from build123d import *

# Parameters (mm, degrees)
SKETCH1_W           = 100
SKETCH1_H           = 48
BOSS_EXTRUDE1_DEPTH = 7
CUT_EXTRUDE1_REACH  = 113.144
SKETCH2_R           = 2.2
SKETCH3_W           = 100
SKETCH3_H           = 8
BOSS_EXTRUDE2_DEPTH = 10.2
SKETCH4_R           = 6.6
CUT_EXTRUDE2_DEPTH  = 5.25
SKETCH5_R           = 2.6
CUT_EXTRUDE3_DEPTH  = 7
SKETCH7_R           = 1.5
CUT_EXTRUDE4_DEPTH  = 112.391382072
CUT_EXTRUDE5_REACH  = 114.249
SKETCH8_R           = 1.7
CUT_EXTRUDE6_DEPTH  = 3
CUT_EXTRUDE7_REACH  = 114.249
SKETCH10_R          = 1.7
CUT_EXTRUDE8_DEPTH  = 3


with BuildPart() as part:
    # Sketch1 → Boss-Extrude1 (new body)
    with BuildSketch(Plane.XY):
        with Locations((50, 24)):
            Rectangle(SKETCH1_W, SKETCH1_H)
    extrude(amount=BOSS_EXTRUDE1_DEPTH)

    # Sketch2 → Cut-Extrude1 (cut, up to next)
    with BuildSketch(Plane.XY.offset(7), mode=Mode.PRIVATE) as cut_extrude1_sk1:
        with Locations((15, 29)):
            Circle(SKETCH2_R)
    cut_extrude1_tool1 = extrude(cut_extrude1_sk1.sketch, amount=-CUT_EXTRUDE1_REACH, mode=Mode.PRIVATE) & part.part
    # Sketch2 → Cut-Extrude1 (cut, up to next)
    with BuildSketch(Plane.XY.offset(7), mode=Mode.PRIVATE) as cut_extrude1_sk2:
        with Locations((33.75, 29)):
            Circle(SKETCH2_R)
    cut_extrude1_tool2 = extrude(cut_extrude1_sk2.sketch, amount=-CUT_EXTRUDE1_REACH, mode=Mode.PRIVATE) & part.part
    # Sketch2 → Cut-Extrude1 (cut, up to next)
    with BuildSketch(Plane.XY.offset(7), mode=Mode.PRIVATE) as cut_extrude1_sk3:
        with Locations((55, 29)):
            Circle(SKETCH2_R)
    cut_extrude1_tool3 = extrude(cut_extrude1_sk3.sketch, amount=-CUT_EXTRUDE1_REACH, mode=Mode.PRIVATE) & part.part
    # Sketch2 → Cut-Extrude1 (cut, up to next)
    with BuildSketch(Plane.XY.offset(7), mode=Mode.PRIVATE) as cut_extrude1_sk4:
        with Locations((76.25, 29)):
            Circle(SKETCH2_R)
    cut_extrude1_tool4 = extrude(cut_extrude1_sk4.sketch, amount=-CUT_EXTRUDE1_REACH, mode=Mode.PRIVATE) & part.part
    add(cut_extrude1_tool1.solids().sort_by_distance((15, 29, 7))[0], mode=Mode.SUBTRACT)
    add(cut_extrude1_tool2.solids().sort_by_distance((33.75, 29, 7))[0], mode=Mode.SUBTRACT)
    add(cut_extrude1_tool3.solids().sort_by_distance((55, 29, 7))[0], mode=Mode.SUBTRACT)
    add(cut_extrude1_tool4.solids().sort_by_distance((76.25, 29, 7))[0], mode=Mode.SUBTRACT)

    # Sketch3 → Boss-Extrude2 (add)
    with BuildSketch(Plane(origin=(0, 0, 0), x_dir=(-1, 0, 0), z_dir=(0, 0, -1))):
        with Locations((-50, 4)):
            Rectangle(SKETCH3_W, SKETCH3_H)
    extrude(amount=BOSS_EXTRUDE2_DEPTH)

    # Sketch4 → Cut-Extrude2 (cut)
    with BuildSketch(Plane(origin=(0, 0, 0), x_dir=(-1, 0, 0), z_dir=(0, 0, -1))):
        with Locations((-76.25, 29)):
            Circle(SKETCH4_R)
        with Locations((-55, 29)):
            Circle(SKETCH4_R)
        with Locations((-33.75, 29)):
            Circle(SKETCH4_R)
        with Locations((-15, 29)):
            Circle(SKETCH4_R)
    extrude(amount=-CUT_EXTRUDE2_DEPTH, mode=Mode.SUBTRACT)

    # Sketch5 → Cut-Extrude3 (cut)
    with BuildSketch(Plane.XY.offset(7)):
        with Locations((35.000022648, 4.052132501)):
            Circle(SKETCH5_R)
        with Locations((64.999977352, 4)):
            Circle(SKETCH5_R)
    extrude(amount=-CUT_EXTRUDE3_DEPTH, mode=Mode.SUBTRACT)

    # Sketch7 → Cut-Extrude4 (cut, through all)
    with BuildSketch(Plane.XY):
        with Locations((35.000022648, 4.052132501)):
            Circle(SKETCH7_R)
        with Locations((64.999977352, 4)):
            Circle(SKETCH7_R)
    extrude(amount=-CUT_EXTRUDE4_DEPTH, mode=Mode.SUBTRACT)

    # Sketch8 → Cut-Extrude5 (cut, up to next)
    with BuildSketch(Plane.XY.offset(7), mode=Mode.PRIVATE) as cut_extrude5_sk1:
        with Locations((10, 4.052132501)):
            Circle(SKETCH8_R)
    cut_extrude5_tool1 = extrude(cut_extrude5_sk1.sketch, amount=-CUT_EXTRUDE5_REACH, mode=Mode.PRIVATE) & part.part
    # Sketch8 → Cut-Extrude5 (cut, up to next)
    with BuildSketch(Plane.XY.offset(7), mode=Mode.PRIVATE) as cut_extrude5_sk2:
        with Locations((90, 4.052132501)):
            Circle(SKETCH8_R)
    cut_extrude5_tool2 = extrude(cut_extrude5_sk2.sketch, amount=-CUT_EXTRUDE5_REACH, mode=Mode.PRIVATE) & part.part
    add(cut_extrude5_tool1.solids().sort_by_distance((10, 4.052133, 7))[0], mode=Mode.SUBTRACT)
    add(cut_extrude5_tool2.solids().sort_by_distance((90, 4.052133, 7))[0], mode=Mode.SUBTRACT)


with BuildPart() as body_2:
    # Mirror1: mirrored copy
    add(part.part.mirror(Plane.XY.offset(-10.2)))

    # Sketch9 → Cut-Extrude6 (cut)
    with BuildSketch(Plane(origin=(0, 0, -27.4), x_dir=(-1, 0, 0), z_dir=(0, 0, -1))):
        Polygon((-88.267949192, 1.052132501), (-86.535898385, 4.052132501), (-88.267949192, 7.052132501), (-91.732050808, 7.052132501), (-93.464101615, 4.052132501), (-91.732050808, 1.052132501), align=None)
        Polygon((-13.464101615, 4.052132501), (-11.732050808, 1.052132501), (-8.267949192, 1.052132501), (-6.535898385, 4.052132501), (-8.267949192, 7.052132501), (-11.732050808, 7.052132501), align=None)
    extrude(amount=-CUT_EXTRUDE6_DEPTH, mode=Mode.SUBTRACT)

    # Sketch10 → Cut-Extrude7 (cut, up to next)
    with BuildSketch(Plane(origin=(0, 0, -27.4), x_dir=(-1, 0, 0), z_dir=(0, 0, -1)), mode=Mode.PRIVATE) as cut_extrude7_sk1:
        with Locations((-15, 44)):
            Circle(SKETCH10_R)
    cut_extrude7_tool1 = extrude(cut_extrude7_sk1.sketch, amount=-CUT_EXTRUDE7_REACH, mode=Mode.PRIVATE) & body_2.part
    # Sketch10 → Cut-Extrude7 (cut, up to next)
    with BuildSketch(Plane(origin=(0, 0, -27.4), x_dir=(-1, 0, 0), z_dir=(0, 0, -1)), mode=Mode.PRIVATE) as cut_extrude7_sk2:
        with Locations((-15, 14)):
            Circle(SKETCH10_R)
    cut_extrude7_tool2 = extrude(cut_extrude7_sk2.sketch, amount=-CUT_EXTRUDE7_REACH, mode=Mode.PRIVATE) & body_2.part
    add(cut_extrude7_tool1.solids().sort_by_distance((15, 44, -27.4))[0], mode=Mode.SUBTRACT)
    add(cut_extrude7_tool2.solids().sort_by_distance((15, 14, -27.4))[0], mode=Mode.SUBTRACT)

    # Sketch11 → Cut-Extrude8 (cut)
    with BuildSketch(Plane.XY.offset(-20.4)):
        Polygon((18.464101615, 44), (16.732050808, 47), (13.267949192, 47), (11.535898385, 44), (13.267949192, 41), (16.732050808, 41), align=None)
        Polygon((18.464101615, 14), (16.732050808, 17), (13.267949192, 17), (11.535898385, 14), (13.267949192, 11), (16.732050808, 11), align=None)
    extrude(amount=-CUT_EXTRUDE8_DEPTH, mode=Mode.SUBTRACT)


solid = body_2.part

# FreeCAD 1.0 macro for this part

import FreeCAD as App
import Part
import Sketcher

V = App.Vector
Q = App.Units.Quantity


def add_polygon(sketch, points):
    """Adds a closed chain of lines whose ends are joined by coincident constraints."""
    first, n = sketch.GeometryCount, len(points)
    for a, b in zip(points, points[1:] + points[:1]):
        sketch.addGeometry(Part.LineSegment(App.Vector(*a, 0), App.Vector(*b, 0)), False)
    for i in range(n):
        sketch.addConstraint(Sketcher.Constraint("Coincident", first + i, 2, first + (i + 1) % n, 1))

doc = App.newDocument("Part")
params = doc.addObject("Spreadsheet::Sheet", "Params")
for row, (alias, value) in enumerate([
    ("sketch1_width", "100 mm"),
    ("sketch1_height", "48 mm"),
    ("pad1_length", "7 mm"),
    ("sketch2_diameter", "4.4 mm"),
    ("sketch3_diameter", "4.4 mm"),
    ("sketch4_diameter", "4.4 mm"),
    ("sketch5_diameter", "4.4 mm"),
    ("sketch6_width", "100 mm"),
    ("sketch6_height", "8 mm"),
    ("pad2_length", "10.2 mm"),
    ("sketch7_diameter", "13.2 mm"),
    ("pocket5_length", "5.25 mm"),
    ("sketch8_diameter", "5.2 mm"),
    ("pocket6_length", "7 mm"),
    ("sketch9_diameter", "3 mm"),
    ("sketch10_diameter", "3.4 mm"),
    ("sketch11_diameter", "3.4 mm"),
    ("pocket10_length", "3 mm"),
    ("sketch13_diameter", "3.4 mm"),
    ("sketch14_diameter", "3.4 mm"),
    ("pocket13_length", "3 mm"),
], start=1):
    params.set(f"A{row}", alias)
    params.set(f"B{row}", "=" + value)
    params.setAlias(f"B{row}", alias)

body = doc.addObject("PartDesign::Body", "Body")

# Sketch on XY plane
sketch1 = doc.addObject("Sketcher::SketchObject", "Sketch")
body.addObject(sketch1)
sketch1.AttachmentSupport = (doc.XY_Plane, [""])
sketch1.MapMode = "FlatFace"
add_polygon(sketch1, [(0, 48), (0, 0), (100, 0), (100, 48)])  # lines 0-3
sketch1.addConstraint([
    Sketcher.Constraint("Vertical", 0),
    Sketcher.Constraint("Horizontal", 1),
    Sketcher.Constraint("Vertical", 2),
    Sketcher.Constraint("Horizontal", 3),
    Sketcher.Constraint("Coincident", 0, 2, -1, 1),
    Sketcher.Constraint("DistanceX", 1, 1, 1, 2, Q("100 mm")),
    Sketcher.Constraint("DistanceY", 0, 2, 0, 1, Q("48 mm")),
])
sketch1.setExpression("Constraints[9]", "Params.sketch1_width")
sketch1.setExpression("Constraints[10]", "Params.sketch1_height")
pad1 = doc.addObject("PartDesign::Pad", "Pad")
body.addObject(pad1)
pad1.Profile = sketch1
pad1.setExpression("Length", "Params.pad1_length")

# Sketch on XY plane
sketch2 = doc.addObject("Sketcher::SketchObject", "Sketch001")
body.addObject(sketch2)
sketch2.AttachmentSupport = (doc.XY_Plane, [""])
sketch2.MapMode = "FlatFace"
sketch2.AttachmentOffset = App.Placement(V(0, 0, 7), App.Rotation())
sketch2.addGeometry(Part.Circle(V(15, 29, 0), V(0, 0, 1), 2.2), False)
sketch2.addConstraint([
    Sketcher.Constraint("Diameter", 0, Q("4.4 mm")),
    Sketcher.Constraint("DistanceX", -1, 1, 0, 3, Q("15 mm")),
    Sketcher.Constraint("DistanceY", -1, 1, 0, 3, Q("29 mm")),
])
sketch2.setExpression("Constraints[0]", "Params.sketch2_diameter")
pocket1 = doc.addObject("PartDesign::Pocket", "Pocket")
body.addObject(pocket1)
pocket1.Profile = sketch2
pocket1.Type = "UpToFirst"

# Sketch on XY plane
sketch3 = doc.addObject("Sketcher::SketchObject", "Sketch002")
body.addObject(sketch3)
sketch3.AttachmentSupport = (doc.XY_Plane, [""])
sketch3.MapMode = "FlatFace"
sketch3.AttachmentOffset = App.Placement(V(0, 0, 7), App.Rotation())
sketch3.addGeometry(Part.Circle(V(33.8, 29, 0), V(0, 0, 1), 2.2), False)
sketch3.addConstraint([
    Sketcher.Constraint("Diameter", 0, Q("4.4 mm")),
    Sketcher.Constraint("DistanceY", -1, 1, 0, 3, Q("29 mm")),
    Sketcher.Constraint("DistanceX", -1, 1, 0, 3, Q("33.75 mm")),
])
sketch3.setExpression("Constraints[0]", "Params.sketch3_diameter")
pocket2 = doc.addObject("PartDesign::Pocket", "Pocket001")
body.addObject(pocket2)
pocket2.Profile = sketch3
pocket2.Type = "UpToFirst"

# Sketch on XY plane
sketch4 = doc.addObject("Sketcher::SketchObject", "Sketch003")
body.addObject(sketch4)
sketch4.AttachmentSupport = (doc.XY_Plane, [""])
sketch4.MapMode = "FlatFace"
sketch4.AttachmentOffset = App.Placement(V(0, 0, 7), App.Rotation())
sketch4.addGeometry(Part.Circle(V(55, 29, 0), V(0, 0, 1), 2.2), False)
sketch4.addConstraint([
    Sketcher.Constraint("Diameter", 0, Q("4.4 mm")),
    Sketcher.Constraint("DistanceX", -1, 1, 0, 3, Q("55 mm")),
    Sketcher.Constraint("DistanceY", -1, 1, 0, 3, Q("29 mm")),
])
sketch4.setExpression("Constraints[0]", "Params.sketch4_diameter")
pocket3 = doc.addObject("PartDesign::Pocket", "Pocket002")
body.addObject(pocket3)
pocket3.Profile = sketch4
pocket3.Type = "UpToFirst"

# Sketch on XY plane
sketch5 = doc.addObject("Sketcher::SketchObject", "Sketch004")
body.addObject(sketch5)
sketch5.AttachmentSupport = (doc.XY_Plane, [""])
sketch5.MapMode = "FlatFace"
sketch5.AttachmentOffset = App.Placement(V(0, 0, 7), App.Rotation())
sketch5.addGeometry(Part.Circle(V(76.2, 29, 0), V(0, 0, 1), 2.2), False)
sketch5.addConstraint([
    Sketcher.Constraint("Diameter", 0, Q("4.4 mm")),
    Sketcher.Constraint("DistanceY", -1, 1, 0, 3, Q("29 mm")),
    Sketcher.Constraint("DistanceX", -1, 1, 0, 3, Q("76.25 mm")),
])
sketch5.setExpression("Constraints[0]", "Params.sketch5_diameter")
pocket4 = doc.addObject("PartDesign::Pocket", "Pocket003")
body.addObject(pocket4)
pocket4.Profile = sketch5
pocket4.Type = "UpToFirst"

# Sketch on XY plane
sketch6 = doc.addObject("Sketcher::SketchObject", "Sketch005")
body.addObject(sketch6)
sketch6.AttachmentSupport = (doc.XY_Plane, [""])
sketch6.MapMode = "FlatFace"
add_polygon(sketch6, [(100, 8), (100, 0), (0, 0), (0, 8)])  # lines 0-3
sketch6.addConstraint([
    Sketcher.Constraint("Vertical", 0),
    Sketcher.Constraint("Horizontal", 1),
    Sketcher.Constraint("Vertical", 2),
    Sketcher.Constraint("Horizontal", 3),
    Sketcher.Constraint("Coincident", 1, 2, -1, 1),
    Sketcher.Constraint("DistanceX", 1, 2, 1, 1, Q("100 mm")),
    Sketcher.Constraint("DistanceY", 0, 2, 0, 1, Q("8 mm")),
])
sketch6.setExpression("Constraints[9]", "Params.sketch6_width")
sketch6.setExpression("Constraints[10]", "Params.sketch6_height")
pad2 = doc.addObject("PartDesign::Pad", "Pad001")
body.addObject(pad2)
pad2.Profile = sketch6
pad2.setExpression("Length", "Params.pad2_length")
pad2.Reversed = True

# Sketch on XY plane
sketch7 = doc.addObject("Sketcher::SketchObject", "Sketch006")
body.addObject(sketch7)
sketch7.AttachmentSupport = (doc.XY_Plane, [""])
sketch7.MapMode = "FlatFace"
sketch7.addGeometry([
    Part.Circle(V(76, 29, 0), V(0, 0, 1), 7),
    Part.Circle(V(55, 29, 0), V(0, 0, 1), 7),
    Part.Circle(V(34, 29, 0), V(0, 0, 1), 7),
    Part.Circle(V(15, 29, 0), V(0, 0, 1), 7),
], False)
sketch7.addConstraint([
    Sketcher.Constraint("Equal", 0, 1),
    Sketcher.Constraint("Equal", 1, 2),
    Sketcher.Constraint("Equal", 2, 3),
    Sketcher.Constraint("Horizontal", 0, 3, 1, 3),
    Sketcher.Constraint("Horizontal", 1, 3, 2, 3),
    Sketcher.Constraint("Horizontal", 2, 3, 3, 3),
    Sketcher.Constraint("Diameter", 0, Q("13.2 mm")),
    Sketcher.Constraint("DistanceY", -1, 1, 0, 3, Q("29 mm")),
    Sketcher.Constraint("DistanceX", -1, 1, 1, 3, Q("55 mm")),
    Sketcher.Constraint("DistanceX", -1, 1, 3, 3, Q("15 mm")),
    Sketcher.Constraint("DistanceX", 2, 3, 0, 3, Q("42.5 mm")),
    Sketcher.Constraint("DistanceX", -1, 1, 0, 3, Q("76.25 mm")),
])
sketch7.setExpression("Constraints[6]", "Params.sketch7_diameter")
pocket5 = doc.addObject("PartDesign::Pocket", "Pocket004")
body.addObject(pocket5)
pocket5.Profile = sketch7
pocket5.setExpression("Length", "Params.pocket5_length")
pocket5.Reversed = True

# Sketch on XY plane
sketch8 = doc.addObject("Sketcher::SketchObject", "Sketch007")
body.addObject(sketch8)
sketch8.AttachmentSupport = (doc.XY_Plane, [""])
sketch8.MapMode = "FlatFace"
sketch8.AttachmentOffset = App.Placement(V(0, 0, 7), App.Rotation())
sketch8.addGeometry([
    Part.Circle(V(35, 4.1, 0), V(0, 0, 1), 2.6),
    Part.Circle(V(65, 4, 0), V(0, 0, 1), 2.6),
], False)
sketch8.addConstraint([
    Sketcher.Constraint("Equal", 0, 1),
    Sketcher.Constraint("Diameter", 0, Q("5.2 mm")),
    Sketcher.Constraint("DistanceY", -1, 1, 1, 3, Q("4 mm")),
    Sketcher.Constraint("DistanceX", -1, 1, 0, 3, Q("35.000023 mm")),
    Sketcher.Constraint("DistanceY", -1, 1, 0, 3, Q("4.052133 mm")),
    Sketcher.Constraint("DistanceX", -1, 1, 1, 3, Q("64.999977 mm")),
])
sketch8.setExpression("Constraints[1]", "Params.sketch8_diameter")
pocket6 = doc.addObject("PartDesign::Pocket", "Pocket005")
body.addObject(pocket6)
pocket6.Profile = sketch8
pocket6.setExpression("Length", "Params.pocket6_length")

# Sketch on XY plane
sketch9 = doc.addObject("Sketcher::SketchObject", "Sketch008")
body.addObject(sketch9)
sketch9.AttachmentSupport = (doc.XY_Plane, [""])
sketch9.MapMode = "FlatFace"
sketch9.addGeometry([
    Part.Circle(V(35, 4.1, 0), V(0, 0, 1), 1.5),
    Part.Circle(V(65, 4, 0), V(0, 0, 1), 1.5),
], False)
sketch9.addConstraint([
    Sketcher.Constraint("Equal", 0, 1),
    Sketcher.Constraint("Diameter", 0, Q("3 mm")),
    Sketcher.Constraint("DistanceY", -1, 1, 1, 3, Q("4 mm")),
    Sketcher.Constraint("DistanceX", -1, 1, 0, 3, Q("35.000023 mm")),
    Sketcher.Constraint("DistanceY", -1, 1, 0, 3, Q("4.052133 mm")),
    Sketcher.Constraint("DistanceX", -1, 1, 1, 3, Q("64.999977 mm")),
])
sketch9.setExpression("Constraints[1]", "Params.sketch9_diameter")
pocket7 = doc.addObject("PartDesign::Pocket", "Pocket006")
body.addObject(pocket7)
pocket7.Profile = sketch9
pocket7.Type = "ThroughAll"

# Sketch on XY plane
sketch10 = doc.addObject("Sketcher::SketchObject", "Sketch009")
body.addObject(sketch10)
sketch10.AttachmentSupport = (doc.XY_Plane, [""])
sketch10.MapMode = "FlatFace"
sketch10.AttachmentOffset = App.Placement(V(0, 0, 7), App.Rotation())
sketch10.addGeometry(Part.Circle(V(10, 4.1, 0), V(0, 0, 1), 1.7), False)
sketch10.addConstraint([
    Sketcher.Constraint("Diameter", 0, Q("3.4 mm")),
    Sketcher.Constraint("DistanceX", -1, 1, 0, 3, Q("10 mm")),
    Sketcher.Constraint("DistanceY", -1, 1, 0, 3, Q("4.052133 mm")),
])
sketch10.setExpression("Constraints[0]", "Params.sketch10_diameter")
pocket8 = doc.addObject("PartDesign::Pocket", "Pocket007")
body.addObject(pocket8)
pocket8.Profile = sketch10
pocket8.Type = "UpToFirst"

# Sketch on XY plane
sketch11 = doc.addObject("Sketcher::SketchObject", "Sketch010")
body.addObject(sketch11)
sketch11.AttachmentSupport = (doc.XY_Plane, [""])
sketch11.MapMode = "FlatFace"
sketch11.AttachmentOffset = App.Placement(V(0, 0, 7), App.Rotation())
sketch11.addGeometry(Part.Circle(V(90, 4.1, 0), V(0, 0, 1), 1.7), False)
sketch11.addConstraint([
    Sketcher.Constraint("Diameter", 0, Q("3.4 mm")),
    Sketcher.Constraint("DistanceX", -1, 1, 0, 3, Q("90 mm")),
    Sketcher.Constraint("DistanceY", -1, 1, 0, 3, Q("4.052133 mm")),
])
sketch11.setExpression("Constraints[0]", "Params.sketch11_diameter")
pocket9 = doc.addObject("PartDesign::Pocket", "Pocket008")
body.addObject(pocket9)
pocket9.Profile = sketch11
pocket9.Type = "UpToFirst"
body2 = doc.addObject("PartDesign::Body", "Body001")
doc.recompute()

mirroring = doc.addObject("Part::Mirroring", "Mirroring")
mirroring.Source = body
mirroring.Base = V(0, 0, -10.2)
mirroring.Normal = V(0, 0, 1)
body2.BaseFeature = mirroring
doc.recompute()

# Sketch on XY plane
sketch12 = doc.addObject("Sketcher::SketchObject", "Sketch011")
body2.addObject(sketch12)
sketch12.AttachmentSupport = (doc.getObject("XY_Plane001"), [""])
sketch12.MapMode = "FlatFace"
sketch12.AttachmentOffset = App.Placement(V(0, 0, -27.4), App.Rotation())
add_polygon(sketch12, [(88.3, 1.1), (86.5, 4.1), (88.3, 7.1), (91.7, 7.1), (93.5, 4.1), (91.7, 1.1)])  # lines 0-5
add_polygon(sketch12, [(13.5, 4.1), (11.7, 1.1), (8.3, 1.1), (6.5, 4.1), (8.3, 7.1), (11.7, 7.1)])  # lines 6-11
sketch12.addConstraint([
    Sketcher.Constraint("Horizontal", 2),
    Sketcher.Constraint("Horizontal", 5),
    Sketcher.Constraint("Horizontal", 7),
    Sketcher.Constraint("Horizontal", 10),
    Sketcher.Constraint("Parallel", 0, 3),
    Sketcher.Constraint("Parallel", 1, 4),
    Sketcher.Constraint("Parallel", 4, 6),
    Sketcher.Constraint("Parallel", 3, 8),
    Sketcher.Constraint("Parallel", 6, 9),
    Sketcher.Constraint("Parallel", 8, 11),
    Sketcher.Constraint("Horizontal", 0, 2, 3, 2),
    Sketcher.Constraint("Horizontal", 5, 2, 6, 2),
    Sketcher.Constraint("Horizontal", 3, 2, 8, 2),
    Sketcher.Constraint("Horizontal", 2, 2, 9, 2),
    Sketcher.Constraint("Horizontal", 8, 2, 11, 2),
    Sketcher.Constraint("Vertical", 2, 2, 4, 2),
    Sketcher.Constraint("Vertical", 1, 2, 5, 2),
    Sketcher.Constraint("Equal", 5, 7),
    Sketcher.Constraint("Angle", 0, Q("120 deg")),
    Sketcher.Constraint("DistanceY", 0, 2, 1, 2, Q("3 mm")),
    Sketcher.Constraint("DistanceX", 6, 2, 4, 2, Q("80 mm")),
    Sketcher.Constraint("DistanceX", 2, 1, 2, 2, Q("3.464102 mm")),
    Sketcher.Constraint("DistanceX", -1, 1, 0, 2, Q("86.535898 mm")),
    Sketcher.Constraint("DistanceY", -1, 1, 0, 2, Q("4.052133 mm")),
])
pocket10 = doc.addObject("PartDesign::Pocket", "Pocket009")
body2.addObject(pocket10)
pocket10.Profile = sketch12
pocket10.setExpression("Length", "Params.pocket10_length")
pocket10.Reversed = True

# Sketch on XY plane
sketch13 = doc.addObject("Sketcher::SketchObject", "Sketch012")
body2.addObject(sketch13)
sketch13.AttachmentSupport = (doc.getObject("XY_Plane001"), [""])
sketch13.MapMode = "FlatFace"
sketch13.AttachmentOffset = App.Placement(V(0, 0, -27.4), App.Rotation())
sketch13.addGeometry(Part.Circle(V(15, 44, 0), V(0, 0, 1), 1.7), False)
sketch13.addConstraint([
    Sketcher.Constraint("Diameter", 0, Q("3.4 mm")),
    Sketcher.Constraint("DistanceX", -1, 1, 0, 3, Q("15 mm")),
    Sketcher.Constraint("DistanceY", -1, 1, 0, 3, Q("44 mm")),
])
sketch13.setExpression("Constraints[0]", "Params.sketch13_diameter")
pocket11 = doc.addObject("PartDesign::Pocket", "Pocket010")
body2.addObject(pocket11)
pocket11.Profile = sketch13
pocket11.Type = "UpToFirst"
pocket11.Reversed = True

# Sketch on XY plane
sketch14 = doc.addObject("Sketcher::SketchObject", "Sketch013")
body2.addObject(sketch14)
sketch14.AttachmentSupport = (doc.getObject("XY_Plane001"), [""])
sketch14.MapMode = "FlatFace"
sketch14.AttachmentOffset = App.Placement(V(0, 0, -27.4), App.Rotation())
sketch14.addGeometry(Part.Circle(V(15, 14, 0), V(0, 0, 1), 1.7), False)
sketch14.addConstraint([
    Sketcher.Constraint("Diameter", 0, Q("3.4 mm")),
    Sketcher.Constraint("DistanceX", -1, 1, 0, 3, Q("15 mm")),
    Sketcher.Constraint("DistanceY", -1, 1, 0, 3, Q("14 mm")),
])
sketch14.setExpression("Constraints[0]", "Params.sketch14_diameter")
pocket12 = doc.addObject("PartDesign::Pocket", "Pocket011")
body2.addObject(pocket12)
pocket12.Profile = sketch14
pocket12.Type = "UpToFirst"
pocket12.Reversed = True

# Sketch on XY plane
sketch15 = doc.addObject("Sketcher::SketchObject", "Sketch014")
body2.addObject(sketch15)
sketch15.AttachmentSupport = (doc.getObject("XY_Plane001"), [""])
sketch15.MapMode = "FlatFace"
sketch15.AttachmentOffset = App.Placement(V(0, 0, -20.4), App.Rotation())
add_polygon(sketch15, [(18.5, 44), (16.7, 47), (13.3, 47), (11.5, 44), (13.3, 41), (16.7, 41)])  # lines 0-5
add_polygon(sketch15, [(18.5, 14), (16.7, 17), (13.3, 17), (11.5, 14), (13.3, 11), (16.7, 11)])  # lines 6-11
sketch15.addConstraint([
    Sketcher.Constraint("Horizontal", 1),
    Sketcher.Constraint("Horizontal", 4),
    Sketcher.Constraint("Horizontal", 7),
    Sketcher.Constraint("Horizontal", 10),
    Sketcher.Constraint("Parallel", 0, 3),
    Sketcher.Constraint("Parallel", 2, 5),
    Sketcher.Constraint("Parallel", 3, 6),
    Sketcher.Constraint("Parallel", 5, 8),
    Sketcher.Constraint("Parallel", 6, 9),
    Sketcher.Constraint("Parallel", 8, 11),
    Sketcher.Constraint("Horizontal", 2, 2, 5, 2),
    Sketcher.Constraint("Horizontal", 8, 2, 11, 2),
    Sketcher.Constraint("Vertical", 1, 2, 3, 2),
    Sketcher.Constraint("Vertical", 0, 2, 4, 2),
    Sketcher.Constraint("Vertical", 4, 2, 6, 2),
    Sketcher.Constraint("Vertical", 3, 2, 7, 2),
    Sketcher.Constraint("Vertical", 2, 2, 8, 2),
    Sketcher.Constraint("Vertical", 7, 2, 9, 2),
    Sketcher.Constraint("Angle", 0, Q("120 deg")),
    Sketcher.Constraint("DistanceY", -1, 1, 0, 2, Q("47 mm")),
    Sketcher.Constraint("DistanceY", -1, 1, 2, 2, Q("44 mm")),
    Sketcher.Constraint("DistanceY", -1, 1, 6, 2, Q("17 mm")),
    Sketcher.Constraint("DistanceX", 1, 2, 1, 1, Q("3.464102 mm")),
    Sketcher.Constraint("DistanceX", -1, 1, 2, 2, Q("11.535898 mm")),
])
pocket13 = doc.addObject("PartDesign::Pocket", "Pocket012")
body2.addObject(pocket13)
pocket13.Profile = sketch15
pocket13.setExpression("Length", "Params.pocket13_length")
body.Visibility = False
mirroring.Visibility = False

doc.recompute()
